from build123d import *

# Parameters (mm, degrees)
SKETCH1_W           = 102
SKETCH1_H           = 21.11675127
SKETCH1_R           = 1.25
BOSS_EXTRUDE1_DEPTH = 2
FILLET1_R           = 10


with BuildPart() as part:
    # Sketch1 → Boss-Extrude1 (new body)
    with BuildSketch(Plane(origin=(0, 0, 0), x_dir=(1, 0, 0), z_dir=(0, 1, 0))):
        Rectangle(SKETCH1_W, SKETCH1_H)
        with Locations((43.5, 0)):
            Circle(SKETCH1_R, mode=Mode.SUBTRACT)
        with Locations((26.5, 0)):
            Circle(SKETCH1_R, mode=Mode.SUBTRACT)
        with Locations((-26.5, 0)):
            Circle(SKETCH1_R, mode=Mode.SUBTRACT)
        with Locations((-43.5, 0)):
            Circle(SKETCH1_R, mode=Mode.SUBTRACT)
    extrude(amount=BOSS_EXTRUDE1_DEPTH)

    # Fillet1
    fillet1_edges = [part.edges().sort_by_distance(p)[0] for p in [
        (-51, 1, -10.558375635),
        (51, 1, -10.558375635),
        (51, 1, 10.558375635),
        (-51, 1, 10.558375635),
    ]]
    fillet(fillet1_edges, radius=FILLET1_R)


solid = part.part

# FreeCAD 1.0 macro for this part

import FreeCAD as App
import Part
import Sketcher

V = App.Vector


def edges_at(feature, points):
    """Names of the edges that pass closest to the given points."""
    edges = feature.Shape.Edges
    near = lambda p: min(range(len(edges)), key=lambda i: edges[i].distToShape(Part.Vertex(*p))[0])
    return sorted({f"Edge{near(p) + 1}" for p in points})

doc = App.newDocument("Part")
params = doc.addObject("Spreadsheet::Sheet", "Params")
for row, (alias, value) in enumerate([
    ("sketch1_diameter", "2.5 mm"),
    ("sketch1_width", "102 mm"),
    ("pad1_length", "2 mm"),
    ("fillet_radius", "10 mm"),
], start=1):
    params.set(f"A{row}", alias)
    params.set(f"B{row}", "=" + value)
    params.setAlias(f"B{row}", alias)

body = doc.addObject("PartDesign::Body", "Body")

sketch1 = body.newObject("Sketcher::SketchObject", "Sketch")
sketch1.AttachmentSupport = (doc.getObject("XZ_Plane"), [""])
sketch1.MapMode = "FlatFace"
sketch1.addGeometry([
    Part.LineSegment(V(-51, -10.6, 0), V(-51, 10.6, 0)),
    Part.LineSegment(V(-51, 10.6, 0), V(51, 10.6, 0)),
    Part.LineSegment(V(51, 10.6, 0), V(51, -10.6, 0)),
    Part.LineSegment(V(51, -10.6, 0), V(-51, -10.6, 0)),
    Part.Circle(V(-43.5, 0, 0), V(0, 0, 1), 1.2),
    Part.Circle(V(-26.5, 0, 0), V(0, 0, 1), 1.2),
    Part.Circle(V(26.5, 0, 0), V(0, 0, 1), 1.2),
    Part.Circle(V(43.5, 0, 0), V(0, 0, 1), 1.2),
], False)
sketch1.addConstraint([
    Sketcher.Constraint("Coincident", 0, 2, 1, 1),
    Sketcher.Constraint("Coincident", 1, 2, 2, 1),
    Sketcher.Constraint("Coincident", 2, 2, 3, 1),
    Sketcher.Constraint("Coincident", 3, 2, 0, 1),
    Sketcher.Constraint("Vertical", 0),
    Sketcher.Constraint("Horizontal", 1),
    Sketcher.Constraint("Vertical", 2),
    Sketcher.Constraint("Horizontal", 3),
    Sketcher.Constraint("Equal", 4, 5),
    Sketcher.Constraint("Equal", 5, 6),
    Sketcher.Constraint("Equal", 6, 7),
    Sketcher.Constraint("Symmetric", 5, 3, 6, 3, -1, 1),
    Sketcher.Constraint("Symmetric", 4, 3, 7, 3, -1, 1),
    Sketcher.Constraint("Symmetric", 0, 2, 2, 2, -1, 1),
    Sketcher.Constraint("PointOnObject", 4, 3, -1),
    Sketcher.Constraint("PointOnObject", 5, 3, -1),
    Sketcher.Constraint("Diameter", 4, 2.5),
    Sketcher.Constraint("DistanceX", 1, 1, 1, 2, 102.0),
    Sketcher.Constraint("DistanceX", 4, 3, 5, 3, 17.0),
    Sketcher.Constraint("DistanceX", 5, 3, 6, 3, 53.0),
    Sketcher.Constraint("DistanceY", 0, 1, 0, 2, 21.116751),
])
sketch1.setExpression("Constraints[16]", "Params.sketch1_diameter")
sketch1.setExpression("Constraints[17]", "Params.sketch1_width")
pad1 = body.newObject("PartDesign::Pad", "Pad")
pad1.Profile = sketch1
pad1.setExpression("Length", "Params.pad1_length")
pad1.Reversed = True
doc.recompute()

fillet = body.newObject("PartDesign::Fillet", "Fillet")
fillet.Base = (pad1, edges_at(pad1, [
    (-51, 1, -10.558),
    (51, 1, -10.558),
    (51, 1, 10.558),
    (-51, 1, 10.558),
]))
fillet.setExpression("Radius", "Params.fillet_radius")

doc.recompute()
